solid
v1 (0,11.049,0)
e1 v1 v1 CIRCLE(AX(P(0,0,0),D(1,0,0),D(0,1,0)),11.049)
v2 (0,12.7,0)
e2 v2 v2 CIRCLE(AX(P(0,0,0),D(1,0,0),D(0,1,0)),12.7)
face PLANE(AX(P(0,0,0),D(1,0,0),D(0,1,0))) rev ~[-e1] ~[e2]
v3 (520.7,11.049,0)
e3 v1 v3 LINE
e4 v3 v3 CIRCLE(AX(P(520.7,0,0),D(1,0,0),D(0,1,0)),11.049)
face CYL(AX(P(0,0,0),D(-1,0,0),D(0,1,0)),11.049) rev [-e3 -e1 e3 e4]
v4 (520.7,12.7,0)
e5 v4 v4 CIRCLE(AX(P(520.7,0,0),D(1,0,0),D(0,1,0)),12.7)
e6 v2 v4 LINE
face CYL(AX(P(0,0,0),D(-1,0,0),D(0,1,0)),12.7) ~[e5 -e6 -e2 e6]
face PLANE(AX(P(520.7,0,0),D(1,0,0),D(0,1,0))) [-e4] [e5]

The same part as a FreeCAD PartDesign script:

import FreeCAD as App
import Part
import Sketcher
from FreeCAD import Vector
Q = App.Units.Quantity

doc = App.newDocument("Part")
body = doc.addObject("PartDesign::Body", "Body")

# Sketch on YZ plane
sketch1 = body.newObject("Sketcher::SketchObject", "Sketch")
sketch1.AttachmentSupport = (doc.getObject("YZ_Plane"), [""])
sketch1.MapMode = "FlatFace"
sketch1.addGeometry([
    Part.Circle(Vector(0, 0, 0), Vector(0, 0, 1), 13),
    Part.Circle(Vector(0, 0, 0), Vector(0, 0, 1), 11),
], False)
sketch1.addConstraint([
    Sketcher.Constraint("Coincident", 0, 3, -1, 1),
    Sketcher.Constraint("Coincident", 1, 3, -1, 1),
    Sketcher.Constraint("Diameter", 0, Q("1 in")),
    Sketcher.Constraint("Diameter", 1, Q("0.87 in")),
])
pad1 = body.newObject("PartDesign::Pad", "Pad")
pad1.Profile = sketch1
pad1.Length = Q("20.5 in")

doc.recompute()
